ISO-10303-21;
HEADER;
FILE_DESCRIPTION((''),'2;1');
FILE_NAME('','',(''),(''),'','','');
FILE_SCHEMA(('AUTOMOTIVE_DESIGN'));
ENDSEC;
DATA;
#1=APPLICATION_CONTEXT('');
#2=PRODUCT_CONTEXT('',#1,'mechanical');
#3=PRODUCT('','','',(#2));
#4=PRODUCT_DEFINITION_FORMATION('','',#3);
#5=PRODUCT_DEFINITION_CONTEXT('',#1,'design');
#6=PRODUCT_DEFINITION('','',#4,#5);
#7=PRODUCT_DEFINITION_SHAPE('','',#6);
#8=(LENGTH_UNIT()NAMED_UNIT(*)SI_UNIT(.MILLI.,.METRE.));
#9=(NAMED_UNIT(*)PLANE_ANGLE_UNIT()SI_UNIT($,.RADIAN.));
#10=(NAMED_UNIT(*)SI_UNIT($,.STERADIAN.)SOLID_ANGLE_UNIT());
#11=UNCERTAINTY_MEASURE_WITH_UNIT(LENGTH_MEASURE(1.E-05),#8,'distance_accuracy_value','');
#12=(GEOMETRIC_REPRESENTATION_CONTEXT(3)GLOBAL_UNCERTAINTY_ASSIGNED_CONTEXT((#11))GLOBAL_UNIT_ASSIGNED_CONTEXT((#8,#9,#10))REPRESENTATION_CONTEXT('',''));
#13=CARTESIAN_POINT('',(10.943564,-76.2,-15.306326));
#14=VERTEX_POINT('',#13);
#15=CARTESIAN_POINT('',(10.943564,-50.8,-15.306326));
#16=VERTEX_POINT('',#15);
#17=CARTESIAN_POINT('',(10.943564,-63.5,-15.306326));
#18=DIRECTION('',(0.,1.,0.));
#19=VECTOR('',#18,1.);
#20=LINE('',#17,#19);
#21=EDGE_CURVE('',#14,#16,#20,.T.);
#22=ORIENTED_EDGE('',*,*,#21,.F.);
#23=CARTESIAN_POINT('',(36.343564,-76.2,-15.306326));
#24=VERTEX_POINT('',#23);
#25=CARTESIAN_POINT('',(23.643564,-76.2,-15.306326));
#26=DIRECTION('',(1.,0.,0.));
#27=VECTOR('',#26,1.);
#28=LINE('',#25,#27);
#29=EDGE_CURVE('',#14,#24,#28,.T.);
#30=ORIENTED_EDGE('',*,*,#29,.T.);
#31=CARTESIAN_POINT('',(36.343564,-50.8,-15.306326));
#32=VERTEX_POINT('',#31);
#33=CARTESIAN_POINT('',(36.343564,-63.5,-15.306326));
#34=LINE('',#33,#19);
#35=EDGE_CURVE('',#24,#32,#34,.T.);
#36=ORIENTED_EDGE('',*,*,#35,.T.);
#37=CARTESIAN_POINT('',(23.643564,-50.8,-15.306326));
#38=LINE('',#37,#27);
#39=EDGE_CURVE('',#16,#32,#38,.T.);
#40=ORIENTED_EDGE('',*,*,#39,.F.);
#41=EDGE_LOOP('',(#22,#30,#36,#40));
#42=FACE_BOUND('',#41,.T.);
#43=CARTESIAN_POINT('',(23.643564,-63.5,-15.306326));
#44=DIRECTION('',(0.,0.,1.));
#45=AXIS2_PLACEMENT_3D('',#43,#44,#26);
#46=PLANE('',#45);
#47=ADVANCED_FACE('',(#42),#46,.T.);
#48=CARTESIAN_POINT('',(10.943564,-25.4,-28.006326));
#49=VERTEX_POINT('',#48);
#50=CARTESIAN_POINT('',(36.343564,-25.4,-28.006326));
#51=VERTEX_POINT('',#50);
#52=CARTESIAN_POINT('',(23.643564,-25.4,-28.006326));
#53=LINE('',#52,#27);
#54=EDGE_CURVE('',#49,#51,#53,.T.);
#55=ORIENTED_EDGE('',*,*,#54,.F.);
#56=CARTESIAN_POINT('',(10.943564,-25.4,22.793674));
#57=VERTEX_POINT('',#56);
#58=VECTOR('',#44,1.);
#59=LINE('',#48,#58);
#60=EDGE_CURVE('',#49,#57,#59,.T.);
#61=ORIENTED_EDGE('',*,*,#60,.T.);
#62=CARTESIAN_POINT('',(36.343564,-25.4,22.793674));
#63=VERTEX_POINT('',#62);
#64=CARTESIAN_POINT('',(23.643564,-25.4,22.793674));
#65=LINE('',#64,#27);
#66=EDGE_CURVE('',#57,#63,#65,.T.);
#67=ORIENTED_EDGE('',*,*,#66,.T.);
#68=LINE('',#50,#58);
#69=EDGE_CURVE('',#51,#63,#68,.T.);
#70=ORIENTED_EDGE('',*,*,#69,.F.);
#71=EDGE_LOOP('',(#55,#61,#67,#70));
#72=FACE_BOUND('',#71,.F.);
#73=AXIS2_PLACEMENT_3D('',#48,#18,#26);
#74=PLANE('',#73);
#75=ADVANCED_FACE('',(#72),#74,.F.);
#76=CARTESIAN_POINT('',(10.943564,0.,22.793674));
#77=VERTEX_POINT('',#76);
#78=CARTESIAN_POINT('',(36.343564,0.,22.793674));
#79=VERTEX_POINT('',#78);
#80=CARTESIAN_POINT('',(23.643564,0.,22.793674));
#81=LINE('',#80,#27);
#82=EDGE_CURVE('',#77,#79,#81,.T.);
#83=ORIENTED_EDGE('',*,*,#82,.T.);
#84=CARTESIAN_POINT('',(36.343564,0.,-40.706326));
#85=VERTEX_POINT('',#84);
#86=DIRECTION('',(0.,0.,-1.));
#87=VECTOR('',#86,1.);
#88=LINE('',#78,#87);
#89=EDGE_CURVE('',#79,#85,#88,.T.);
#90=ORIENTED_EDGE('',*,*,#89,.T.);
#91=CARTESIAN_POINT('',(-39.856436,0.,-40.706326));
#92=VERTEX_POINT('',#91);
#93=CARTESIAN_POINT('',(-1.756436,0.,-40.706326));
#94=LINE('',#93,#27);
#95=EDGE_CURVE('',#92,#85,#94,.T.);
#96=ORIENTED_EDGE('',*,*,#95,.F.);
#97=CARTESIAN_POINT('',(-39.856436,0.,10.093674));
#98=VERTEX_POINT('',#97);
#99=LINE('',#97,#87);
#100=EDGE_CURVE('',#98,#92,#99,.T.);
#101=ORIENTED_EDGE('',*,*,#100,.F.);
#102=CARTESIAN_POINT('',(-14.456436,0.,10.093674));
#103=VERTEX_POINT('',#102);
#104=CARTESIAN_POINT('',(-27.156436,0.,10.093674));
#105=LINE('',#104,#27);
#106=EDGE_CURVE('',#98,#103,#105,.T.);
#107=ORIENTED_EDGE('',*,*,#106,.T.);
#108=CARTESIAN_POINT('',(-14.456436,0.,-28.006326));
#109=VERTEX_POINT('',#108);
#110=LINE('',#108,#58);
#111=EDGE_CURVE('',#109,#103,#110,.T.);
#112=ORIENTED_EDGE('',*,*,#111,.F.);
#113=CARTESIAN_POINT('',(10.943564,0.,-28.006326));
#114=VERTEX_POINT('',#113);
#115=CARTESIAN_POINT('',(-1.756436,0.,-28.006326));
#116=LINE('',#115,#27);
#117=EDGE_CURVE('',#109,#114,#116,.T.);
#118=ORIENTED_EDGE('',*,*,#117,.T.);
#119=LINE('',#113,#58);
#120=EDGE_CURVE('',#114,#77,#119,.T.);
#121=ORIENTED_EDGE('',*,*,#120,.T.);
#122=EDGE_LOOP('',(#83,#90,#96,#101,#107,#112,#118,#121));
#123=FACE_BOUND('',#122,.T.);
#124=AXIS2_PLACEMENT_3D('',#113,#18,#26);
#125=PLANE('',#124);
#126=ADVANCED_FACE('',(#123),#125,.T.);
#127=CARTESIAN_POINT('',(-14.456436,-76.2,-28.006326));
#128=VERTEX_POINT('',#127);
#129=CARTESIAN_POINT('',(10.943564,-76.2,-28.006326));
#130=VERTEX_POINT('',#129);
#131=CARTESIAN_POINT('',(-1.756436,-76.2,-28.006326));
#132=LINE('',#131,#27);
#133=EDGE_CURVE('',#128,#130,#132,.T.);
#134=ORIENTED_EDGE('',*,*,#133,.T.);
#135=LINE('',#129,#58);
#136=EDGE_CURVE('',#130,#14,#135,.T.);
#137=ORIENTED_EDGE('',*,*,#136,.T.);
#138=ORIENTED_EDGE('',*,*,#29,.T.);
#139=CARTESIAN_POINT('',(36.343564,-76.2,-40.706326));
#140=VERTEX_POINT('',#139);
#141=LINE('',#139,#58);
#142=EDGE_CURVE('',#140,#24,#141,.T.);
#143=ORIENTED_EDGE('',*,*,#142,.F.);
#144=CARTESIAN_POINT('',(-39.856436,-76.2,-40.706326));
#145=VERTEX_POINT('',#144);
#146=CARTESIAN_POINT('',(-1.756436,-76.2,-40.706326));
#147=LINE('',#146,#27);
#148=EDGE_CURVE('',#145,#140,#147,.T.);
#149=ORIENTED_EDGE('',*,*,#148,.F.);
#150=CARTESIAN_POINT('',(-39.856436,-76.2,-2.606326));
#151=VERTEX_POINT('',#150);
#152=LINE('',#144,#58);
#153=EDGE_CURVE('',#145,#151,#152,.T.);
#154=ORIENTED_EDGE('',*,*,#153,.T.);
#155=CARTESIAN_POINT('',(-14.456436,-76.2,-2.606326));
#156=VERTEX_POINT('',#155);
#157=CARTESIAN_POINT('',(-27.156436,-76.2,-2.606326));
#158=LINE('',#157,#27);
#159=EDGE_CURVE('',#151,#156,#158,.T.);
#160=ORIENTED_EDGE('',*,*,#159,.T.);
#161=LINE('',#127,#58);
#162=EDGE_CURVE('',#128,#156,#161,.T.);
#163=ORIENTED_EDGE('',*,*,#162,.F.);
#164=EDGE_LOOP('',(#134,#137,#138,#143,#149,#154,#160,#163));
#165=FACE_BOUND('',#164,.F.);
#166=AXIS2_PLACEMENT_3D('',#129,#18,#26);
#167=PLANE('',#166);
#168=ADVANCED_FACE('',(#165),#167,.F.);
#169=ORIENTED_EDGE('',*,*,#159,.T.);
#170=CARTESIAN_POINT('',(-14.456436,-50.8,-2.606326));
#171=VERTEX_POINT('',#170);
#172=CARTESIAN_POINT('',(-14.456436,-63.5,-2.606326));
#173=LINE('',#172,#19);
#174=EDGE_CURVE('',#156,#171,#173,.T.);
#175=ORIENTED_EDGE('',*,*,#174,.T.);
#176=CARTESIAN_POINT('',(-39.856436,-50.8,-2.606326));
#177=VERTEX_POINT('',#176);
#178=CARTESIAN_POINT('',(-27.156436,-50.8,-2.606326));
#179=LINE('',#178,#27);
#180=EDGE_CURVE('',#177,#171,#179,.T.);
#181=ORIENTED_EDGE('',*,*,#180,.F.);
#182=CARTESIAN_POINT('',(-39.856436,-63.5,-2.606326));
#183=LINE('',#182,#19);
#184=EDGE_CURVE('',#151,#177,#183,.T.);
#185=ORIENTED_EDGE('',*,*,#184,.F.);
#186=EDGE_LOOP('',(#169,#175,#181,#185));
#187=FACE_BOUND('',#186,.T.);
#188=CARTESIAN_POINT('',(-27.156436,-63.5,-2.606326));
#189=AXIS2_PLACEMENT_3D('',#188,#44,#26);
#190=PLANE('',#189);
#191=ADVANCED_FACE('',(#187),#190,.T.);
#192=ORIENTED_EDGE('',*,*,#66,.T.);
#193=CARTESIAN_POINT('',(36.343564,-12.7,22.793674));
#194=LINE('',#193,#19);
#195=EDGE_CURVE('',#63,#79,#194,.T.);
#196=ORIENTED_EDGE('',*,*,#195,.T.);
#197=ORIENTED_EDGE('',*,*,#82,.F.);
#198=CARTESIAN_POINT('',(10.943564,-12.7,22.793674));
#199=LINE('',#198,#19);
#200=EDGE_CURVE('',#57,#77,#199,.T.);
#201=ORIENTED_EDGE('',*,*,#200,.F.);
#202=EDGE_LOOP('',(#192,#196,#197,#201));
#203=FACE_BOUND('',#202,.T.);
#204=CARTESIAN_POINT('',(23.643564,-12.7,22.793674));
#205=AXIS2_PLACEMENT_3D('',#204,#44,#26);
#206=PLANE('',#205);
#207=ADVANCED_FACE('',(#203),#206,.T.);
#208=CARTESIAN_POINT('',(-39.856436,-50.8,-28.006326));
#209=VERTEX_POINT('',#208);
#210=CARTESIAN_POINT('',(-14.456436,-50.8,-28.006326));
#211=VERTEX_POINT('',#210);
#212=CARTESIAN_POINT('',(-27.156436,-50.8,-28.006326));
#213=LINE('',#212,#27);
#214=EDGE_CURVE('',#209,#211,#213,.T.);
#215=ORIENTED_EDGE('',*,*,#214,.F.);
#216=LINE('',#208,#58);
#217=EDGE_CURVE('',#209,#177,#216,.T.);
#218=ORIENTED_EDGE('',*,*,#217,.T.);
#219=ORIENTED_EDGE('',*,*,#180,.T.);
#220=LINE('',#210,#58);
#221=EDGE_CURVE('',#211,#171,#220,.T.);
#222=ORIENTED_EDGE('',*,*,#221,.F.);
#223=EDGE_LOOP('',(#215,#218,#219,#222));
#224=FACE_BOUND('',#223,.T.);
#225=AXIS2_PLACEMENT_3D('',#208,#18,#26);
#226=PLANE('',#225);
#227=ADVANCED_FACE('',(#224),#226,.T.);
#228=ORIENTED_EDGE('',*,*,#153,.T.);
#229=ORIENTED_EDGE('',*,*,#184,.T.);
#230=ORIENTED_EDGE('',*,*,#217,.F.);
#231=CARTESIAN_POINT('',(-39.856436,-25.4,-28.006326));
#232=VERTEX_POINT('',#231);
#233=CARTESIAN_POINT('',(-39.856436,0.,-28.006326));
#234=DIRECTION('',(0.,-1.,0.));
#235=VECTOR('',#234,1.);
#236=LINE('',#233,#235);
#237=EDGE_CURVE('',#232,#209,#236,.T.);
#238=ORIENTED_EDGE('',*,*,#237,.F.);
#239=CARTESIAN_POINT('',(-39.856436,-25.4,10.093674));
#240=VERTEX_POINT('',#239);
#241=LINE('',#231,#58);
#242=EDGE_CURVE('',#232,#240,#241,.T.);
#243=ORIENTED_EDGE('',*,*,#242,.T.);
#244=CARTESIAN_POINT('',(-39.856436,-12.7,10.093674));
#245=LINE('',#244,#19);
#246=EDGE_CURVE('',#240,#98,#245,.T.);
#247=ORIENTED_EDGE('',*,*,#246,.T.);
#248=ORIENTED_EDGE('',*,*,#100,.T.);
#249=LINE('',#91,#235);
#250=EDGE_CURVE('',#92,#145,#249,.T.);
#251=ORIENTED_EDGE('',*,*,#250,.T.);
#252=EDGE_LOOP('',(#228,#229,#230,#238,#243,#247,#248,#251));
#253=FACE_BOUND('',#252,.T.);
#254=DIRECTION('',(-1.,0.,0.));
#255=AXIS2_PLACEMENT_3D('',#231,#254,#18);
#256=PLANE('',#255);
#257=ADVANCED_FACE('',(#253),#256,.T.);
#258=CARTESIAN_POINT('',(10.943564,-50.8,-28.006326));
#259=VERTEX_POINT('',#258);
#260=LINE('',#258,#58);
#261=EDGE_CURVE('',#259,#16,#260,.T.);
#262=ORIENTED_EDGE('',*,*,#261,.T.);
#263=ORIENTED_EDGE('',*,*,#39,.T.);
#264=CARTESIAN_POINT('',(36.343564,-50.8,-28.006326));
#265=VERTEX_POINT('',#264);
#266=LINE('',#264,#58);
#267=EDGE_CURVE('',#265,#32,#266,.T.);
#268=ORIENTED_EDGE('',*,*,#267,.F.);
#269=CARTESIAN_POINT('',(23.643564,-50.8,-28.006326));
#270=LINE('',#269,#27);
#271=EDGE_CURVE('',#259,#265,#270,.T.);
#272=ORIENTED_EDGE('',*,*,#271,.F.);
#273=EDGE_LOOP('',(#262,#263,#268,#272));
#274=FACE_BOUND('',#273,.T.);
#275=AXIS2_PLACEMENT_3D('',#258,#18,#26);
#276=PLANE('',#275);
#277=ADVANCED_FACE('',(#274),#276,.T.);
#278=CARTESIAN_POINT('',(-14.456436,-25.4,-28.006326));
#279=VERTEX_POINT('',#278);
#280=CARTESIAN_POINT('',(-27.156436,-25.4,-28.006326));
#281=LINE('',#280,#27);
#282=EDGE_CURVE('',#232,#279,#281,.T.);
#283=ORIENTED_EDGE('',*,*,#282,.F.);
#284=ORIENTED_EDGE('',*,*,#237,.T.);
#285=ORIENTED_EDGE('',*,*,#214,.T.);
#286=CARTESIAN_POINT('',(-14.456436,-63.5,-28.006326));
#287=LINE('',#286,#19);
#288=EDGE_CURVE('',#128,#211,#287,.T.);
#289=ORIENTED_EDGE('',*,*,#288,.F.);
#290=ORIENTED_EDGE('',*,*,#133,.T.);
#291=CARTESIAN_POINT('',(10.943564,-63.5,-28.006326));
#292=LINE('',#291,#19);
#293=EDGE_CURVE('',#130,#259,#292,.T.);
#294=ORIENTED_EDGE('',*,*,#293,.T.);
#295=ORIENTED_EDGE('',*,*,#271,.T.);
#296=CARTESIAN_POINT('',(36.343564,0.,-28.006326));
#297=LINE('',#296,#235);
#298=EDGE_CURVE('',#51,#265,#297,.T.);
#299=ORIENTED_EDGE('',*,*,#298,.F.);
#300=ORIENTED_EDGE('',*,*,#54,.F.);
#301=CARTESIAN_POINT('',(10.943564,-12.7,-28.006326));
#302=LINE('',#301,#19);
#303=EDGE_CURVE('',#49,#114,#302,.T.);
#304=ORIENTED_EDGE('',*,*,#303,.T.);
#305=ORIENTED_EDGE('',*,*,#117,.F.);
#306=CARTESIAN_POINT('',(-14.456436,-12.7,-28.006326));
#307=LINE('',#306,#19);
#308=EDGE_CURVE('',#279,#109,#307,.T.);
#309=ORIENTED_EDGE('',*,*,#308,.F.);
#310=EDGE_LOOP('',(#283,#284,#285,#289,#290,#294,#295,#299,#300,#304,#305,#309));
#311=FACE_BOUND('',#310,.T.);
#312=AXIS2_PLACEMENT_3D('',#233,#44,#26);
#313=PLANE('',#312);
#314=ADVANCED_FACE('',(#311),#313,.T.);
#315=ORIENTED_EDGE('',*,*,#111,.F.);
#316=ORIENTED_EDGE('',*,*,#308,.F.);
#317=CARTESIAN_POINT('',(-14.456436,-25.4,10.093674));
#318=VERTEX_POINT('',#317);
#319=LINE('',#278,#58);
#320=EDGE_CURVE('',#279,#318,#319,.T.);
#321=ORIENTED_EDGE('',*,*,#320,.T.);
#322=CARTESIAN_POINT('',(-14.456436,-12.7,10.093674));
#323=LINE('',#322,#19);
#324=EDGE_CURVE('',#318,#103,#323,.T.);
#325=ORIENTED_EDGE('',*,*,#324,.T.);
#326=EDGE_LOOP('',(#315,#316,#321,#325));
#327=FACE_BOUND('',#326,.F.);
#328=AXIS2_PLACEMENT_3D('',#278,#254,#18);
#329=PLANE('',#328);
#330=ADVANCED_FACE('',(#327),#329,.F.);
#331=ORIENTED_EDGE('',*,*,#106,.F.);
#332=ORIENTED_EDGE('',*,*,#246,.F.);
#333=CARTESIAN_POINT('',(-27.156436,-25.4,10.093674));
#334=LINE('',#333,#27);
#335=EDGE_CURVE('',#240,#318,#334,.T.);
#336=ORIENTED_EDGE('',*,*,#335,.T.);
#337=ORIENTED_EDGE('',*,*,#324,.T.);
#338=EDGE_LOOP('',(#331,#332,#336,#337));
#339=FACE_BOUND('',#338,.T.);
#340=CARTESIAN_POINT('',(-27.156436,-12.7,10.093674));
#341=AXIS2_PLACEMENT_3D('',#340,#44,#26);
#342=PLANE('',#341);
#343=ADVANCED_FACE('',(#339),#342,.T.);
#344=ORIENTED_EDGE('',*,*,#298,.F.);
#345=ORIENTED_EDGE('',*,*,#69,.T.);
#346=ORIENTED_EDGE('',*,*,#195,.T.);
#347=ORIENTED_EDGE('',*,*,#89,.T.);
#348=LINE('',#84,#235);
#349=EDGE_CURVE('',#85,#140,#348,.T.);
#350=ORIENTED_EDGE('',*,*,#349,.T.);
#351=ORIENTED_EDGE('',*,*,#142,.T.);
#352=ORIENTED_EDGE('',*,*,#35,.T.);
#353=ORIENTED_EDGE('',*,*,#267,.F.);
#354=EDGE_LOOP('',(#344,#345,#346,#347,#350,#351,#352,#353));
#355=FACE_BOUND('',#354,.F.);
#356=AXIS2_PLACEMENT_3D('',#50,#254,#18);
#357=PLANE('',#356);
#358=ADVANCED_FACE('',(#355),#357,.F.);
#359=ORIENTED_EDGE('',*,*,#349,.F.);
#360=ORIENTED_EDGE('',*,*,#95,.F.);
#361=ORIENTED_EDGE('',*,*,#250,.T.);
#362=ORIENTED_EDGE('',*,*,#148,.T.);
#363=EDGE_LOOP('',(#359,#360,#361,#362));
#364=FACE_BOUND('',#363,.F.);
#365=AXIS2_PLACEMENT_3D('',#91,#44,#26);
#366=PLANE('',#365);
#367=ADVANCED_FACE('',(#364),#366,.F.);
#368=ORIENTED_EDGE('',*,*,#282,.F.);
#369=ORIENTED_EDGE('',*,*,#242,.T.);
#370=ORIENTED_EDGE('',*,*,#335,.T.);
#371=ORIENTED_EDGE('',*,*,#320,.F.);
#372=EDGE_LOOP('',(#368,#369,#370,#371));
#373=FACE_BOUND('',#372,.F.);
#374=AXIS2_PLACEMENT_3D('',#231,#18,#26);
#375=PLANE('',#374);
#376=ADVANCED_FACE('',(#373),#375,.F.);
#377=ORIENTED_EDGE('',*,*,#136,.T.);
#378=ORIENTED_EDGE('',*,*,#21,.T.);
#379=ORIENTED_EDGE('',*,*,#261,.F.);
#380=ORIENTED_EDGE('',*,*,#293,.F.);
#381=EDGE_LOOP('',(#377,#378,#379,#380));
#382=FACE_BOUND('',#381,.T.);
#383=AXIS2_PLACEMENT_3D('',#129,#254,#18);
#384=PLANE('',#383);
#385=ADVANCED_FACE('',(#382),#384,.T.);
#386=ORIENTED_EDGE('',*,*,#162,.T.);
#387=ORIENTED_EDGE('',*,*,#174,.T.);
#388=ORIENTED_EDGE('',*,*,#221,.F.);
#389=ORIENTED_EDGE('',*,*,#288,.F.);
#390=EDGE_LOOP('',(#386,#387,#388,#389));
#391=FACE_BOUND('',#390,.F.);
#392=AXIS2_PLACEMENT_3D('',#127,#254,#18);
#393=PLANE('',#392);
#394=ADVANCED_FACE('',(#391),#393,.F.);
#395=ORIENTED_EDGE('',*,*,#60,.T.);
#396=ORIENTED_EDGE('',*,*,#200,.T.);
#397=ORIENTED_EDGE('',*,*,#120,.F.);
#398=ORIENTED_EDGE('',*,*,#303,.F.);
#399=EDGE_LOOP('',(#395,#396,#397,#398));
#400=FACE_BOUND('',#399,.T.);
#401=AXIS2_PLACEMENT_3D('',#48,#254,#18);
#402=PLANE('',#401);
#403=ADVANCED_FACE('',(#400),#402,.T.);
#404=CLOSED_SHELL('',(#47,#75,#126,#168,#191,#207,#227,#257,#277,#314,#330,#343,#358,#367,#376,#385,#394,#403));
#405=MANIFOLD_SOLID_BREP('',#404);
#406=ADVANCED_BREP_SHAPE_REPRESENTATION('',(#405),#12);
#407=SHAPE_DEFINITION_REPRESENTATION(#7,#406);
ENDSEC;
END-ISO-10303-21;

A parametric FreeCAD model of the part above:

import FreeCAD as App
import Part
import Sketcher
Q = App.Units.Quantity

doc = App.newDocument("Part")
body = doc.addObject("PartDesign::Body", "Body")

sketch1 = doc.addObject("Sketcher::SketchObject", "Sketch")
body.addObject(sketch1)
sketch1.AttachmentSupport = (doc.XZ_Plane, [""])
sketch1.MapMode = "FlatFace"
sketch1.addGeometry([
    Part.LineSegment(App.Vector(-39.856436, -28.006326, 0), App.Vector(-39.856436, -40.706326, 0)),
    Part.LineSegment(App.Vector(-39.856436, -40.706326, 0), App.Vector(36.343564, -40.706326, 0)),
    Part.LineSegment(App.Vector(36.343564, -40.706326, 0), App.Vector(36.343564, -28.006326, 0)),
    Part.LineSegment(App.Vector(36.343564, -28.006326, 0), App.Vector(-39.856436, -28.006326, 0)),
], False)
sketch1.addConstraint([
    Sketcher.Constraint("Coincident", 0, 2, 1, 1),
    Sketcher.Constraint("Coincident", 1, 2, 2, 1),
    Sketcher.Constraint("Coincident", 2, 2, 3, 1),
    Sketcher.Constraint("Coincident", 3, 2, 0, 1),
    Sketcher.Constraint("Vertical", 0),
    Sketcher.Constraint("Horizontal", 1),
    Sketcher.Constraint("Vertical", 2),
    Sketcher.Constraint("Horizontal", 3),
    Sketcher.Constraint("DistanceX", 1, 1, 1, 2, Q("3 in")),
    Sketcher.Constraint("DistanceY", 0, 2, 0, 1, Q("0.5 in")),
    Sketcher.Constraint("DistanceX", 0, 2, -1, 1, 39.856436),
    Sketcher.Constraint("DistanceY", 0, 2, -1, 1, 40.706326),
])
pad1 = doc.addObject("PartDesign::Pad", "Pad")
body.addObject(pad1)
pad1.Profile = sketch1
pad1.Length = Q("3 in")

sketch2 = doc.addObject("Sketcher::SketchObject", "Sketch001")
body.addObject(sketch2)
sketch2.AttachmentSupport = (doc.XY_Plane, [""])
sketch2.MapMode = "FlatFace"
sketch2.AttachmentOffset = App.Placement(App.Vector(0, 0, -28.006326), App.Rotation())
sketch2.addGeometry([
    Part.LineSegment(App.Vector(-39.856436, -50.8, 0), App.Vector(-39.856436, -76.2, 0)),
    Part.LineSegment(App.Vector(-39.856436, -76.2, 0), App.Vector(-14.456436, -76.2, 0)),
    Part.LineSegment(App.Vector(-14.456436, -76.2, 0), App.Vector(-14.456436, -50.8, 0)),
    Part.LineSegment(App.Vector(-14.456436, -50.8, 0), App.Vector(-39.856436, -50.8, 0)),
], False)
sketch2.addConstraint([
    Sketcher.Constraint("Coincident", 0, 2, 1, 1),
    Sketcher.Constraint("Coincident", 1, 2, 2, 1),
    Sketcher.Constraint("Coincident", 2, 2, 3, 1),
    Sketcher.Constraint("Coincident", 3, 2, 0, 1),
    Sketcher.Constraint("Vertical", 0),
    Sketcher.Constraint("Horizontal", 1),
    Sketcher.Constraint("Vertical", 2),
    Sketcher.Constraint("Horizontal", 3),
    Sketcher.Constraint("Equal", 3, 0),
    Sketcher.Constraint("DistanceX", 1, 1, 1, 2, Q("1 in")),
    Sketcher.Constraint("DistanceY", 0, 2, -1, 1, Q("3 in")),
    Sketcher.Constraint("DistanceX", 0, 2, -1, 1, 39.856436),
])
pad2 = doc.addObject("PartDesign::Pad", "Pad001")
body.addObject(pad2)
pad2.Profile = sketch2
pad2.Length = Q("1 in")

sketch3 = doc.addObject("Sketcher::SketchObject", "Sketch002")
body.addObject(sketch3)
sketch3.AttachmentSupport = (doc.XY_Plane, [""])
sketch3.MapMode = "FlatFace"
sketch3.AttachmentOffset = App.Placement(App.Vector(0, 0, -28.006326), App.Rotation())
sketch3.addGeometry([
    Part.LineSegment(App.Vector(10.943564, -50.8, 0), App.Vector(10.943564, -76.2, 0)),
    Part.LineSegment(App.Vector(10.943564, -76.2, 0), App.Vector(36.343564, -76.2, 0)),
    Part.LineSegment(App.Vector(36.343564, -76.2, 0), App.Vector(36.343564, -50.8, 0)),
    Part.LineSegment(App.Vector(36.343564, -50.8, 0), App.Vector(10.943564, -50.8, 0)),
], False)
sketch3.addConstraint([
    Sketcher.Constraint("Coincident", 0, 2, 1, 1),
    Sketcher.Constraint("Coincident", 1, 2, 2, 1),
    Sketcher.Constraint("Coincident", 2, 2, 3, 1),
    Sketcher.Constraint("Coincident", 3, 2, 0, 1),
    Sketcher.Constraint("Vertical", 0),
    Sketcher.Constraint("Horizontal", 1),
    Sketcher.Constraint("Vertical", 2),
    Sketcher.Constraint("Horizontal", 3),
    Sketcher.Constraint("Equal", 3, 0),
    Sketcher.Constraint("DistanceX", 1, 1, 1, 2, Q("1 in")),
    Sketcher.Constraint("DistanceY", 0, 2, -1, 1, Q("3 in")),
    Sketcher.Constraint("DistanceX", -1, 1, 0, 2, 10.943564),
])
pad3 = doc.addObject("PartDesign::Pad", "Pad002")
body.addObject(pad3)
pad3.Profile = sketch3
pad3.Length = Q("0.5 in")

sketch4 = doc.addObject("Sketcher::SketchObject", "Sketch003")
body.addObject(sketch4)
sketch4.AttachmentSupport = (doc.XY_Plane, [""])
sketch4.MapMode = "FlatFace"
sketch4.AttachmentOffset = App.Placement(App.Vector(0, 0, -28.006326), App.Rotation())
sketch4.addGeometry([
    Part.LineSegment(App.Vector(-39.856436, 0, 0), App.Vector(-39.856436, -25.4, 0)),
    Part.LineSegment(App.Vector(-39.856436, -25.4, 0), App.Vector(-14.456436, -25.4, 0)),
    Part.LineSegment(App.Vector(-14.456436, -25.4, 0), App.Vector(-14.456436, 0, 0)),
    Part.LineSegment(App.Vector(-14.456436, 0, 0), App.Vector(-39.856436, 0, 0)),
], False)
sketch4.addConstraint([
    Sketcher.Constraint("Coincident", 0, 2, 1, 1),
    Sketcher.Constraint("Coincident", 1, 2, 2, 1),
    Sketcher.Constraint("Coincident", 2, 2, 3, 1),
    Sketcher.Constraint("Coincident", 3, 2, 0, 1),
    Sketcher.Constraint("Vertical", 0),
    Sketcher.Constraint("Horizontal", 1),
    Sketcher.Constraint("Vertical", 2),
    Sketcher.Constraint("Horizontal", 3),
    Sketcher.Constraint("PointOnObject", 2, 2, -1),
    Sketcher.Constraint("Equal", 3, 0),
    Sketcher.Constraint("DistanceX", 1, 1, 1, 2, Q("1 in")),
    Sketcher.Constraint("DistanceX", 0, 2, -1, 1, 39.856436),
])
pad4 = doc.addObject("PartDesign::Pad", "Pad003")
body.addObject(pad4)
pad4.Profile = sketch4
pad4.Length = Q("1.5 in")

sketch5 = doc.addObject("Sketcher::SketchObject", "Sketch004")
body.addObject(sketch5)
sketch5.AttachmentSupport = (doc.XY_Plane, [""])
sketch5.MapMode = "FlatFace"
sketch5.AttachmentOffset = App.Placement(App.Vector(0, 0, -28.006326), App.Rotation())
sketch5.addGeometry([
    Part.LineSegment(App.Vector(10.943564, 0, 0), App.Vector(10.943564, -25.4, 0)),
    Part.LineSegment(App.Vector(10.943564, -25.4, 0), App.Vector(36.343564, -25.4, 0)),
    Part.LineSegment(App.Vector(36.343564, -25.4, 0), App.Vector(36.343564, 0, 0)),
    Part.LineSegment(App.Vector(36.343564, 0, 0), App.Vector(10.943564, 0, 0)),
], False)
sketch5.addConstraint([
    Sketcher.Constraint("Coincident", 0, 2, 1, 1),
    Sketcher.Constraint("Coincident", 1, 2, 2, 1),
    Sketcher.Constraint("Coincident", 2, 2, 3, 1),
    Sketcher.Constraint("Coincident", 3, 2, 0, 1),
    Sketcher.Constraint("Vertical", 0),
    Sketcher.Constraint("Horizontal", 1),
    Sketcher.Constraint("Vertical", 2),
    Sketcher.Constraint("Horizontal", 3),
    Sketcher.Constraint("PointOnObject", 2, 2, -1),
    Sketcher.Constraint("Equal", 3, 0),
    Sketcher.Constraint("DistanceX", 1, 1, 1, 2, Q("1 in")),
    Sketcher.Constraint("DistanceX", -1, 1, 0, 2, 10.943564),
])
pad5 = doc.addObject("PartDesign::Pad", "Pad004")
body.addObject(pad5)
pad5.Profile = sketch5
pad5.Length = Q("2 in")

doc.recompute()
